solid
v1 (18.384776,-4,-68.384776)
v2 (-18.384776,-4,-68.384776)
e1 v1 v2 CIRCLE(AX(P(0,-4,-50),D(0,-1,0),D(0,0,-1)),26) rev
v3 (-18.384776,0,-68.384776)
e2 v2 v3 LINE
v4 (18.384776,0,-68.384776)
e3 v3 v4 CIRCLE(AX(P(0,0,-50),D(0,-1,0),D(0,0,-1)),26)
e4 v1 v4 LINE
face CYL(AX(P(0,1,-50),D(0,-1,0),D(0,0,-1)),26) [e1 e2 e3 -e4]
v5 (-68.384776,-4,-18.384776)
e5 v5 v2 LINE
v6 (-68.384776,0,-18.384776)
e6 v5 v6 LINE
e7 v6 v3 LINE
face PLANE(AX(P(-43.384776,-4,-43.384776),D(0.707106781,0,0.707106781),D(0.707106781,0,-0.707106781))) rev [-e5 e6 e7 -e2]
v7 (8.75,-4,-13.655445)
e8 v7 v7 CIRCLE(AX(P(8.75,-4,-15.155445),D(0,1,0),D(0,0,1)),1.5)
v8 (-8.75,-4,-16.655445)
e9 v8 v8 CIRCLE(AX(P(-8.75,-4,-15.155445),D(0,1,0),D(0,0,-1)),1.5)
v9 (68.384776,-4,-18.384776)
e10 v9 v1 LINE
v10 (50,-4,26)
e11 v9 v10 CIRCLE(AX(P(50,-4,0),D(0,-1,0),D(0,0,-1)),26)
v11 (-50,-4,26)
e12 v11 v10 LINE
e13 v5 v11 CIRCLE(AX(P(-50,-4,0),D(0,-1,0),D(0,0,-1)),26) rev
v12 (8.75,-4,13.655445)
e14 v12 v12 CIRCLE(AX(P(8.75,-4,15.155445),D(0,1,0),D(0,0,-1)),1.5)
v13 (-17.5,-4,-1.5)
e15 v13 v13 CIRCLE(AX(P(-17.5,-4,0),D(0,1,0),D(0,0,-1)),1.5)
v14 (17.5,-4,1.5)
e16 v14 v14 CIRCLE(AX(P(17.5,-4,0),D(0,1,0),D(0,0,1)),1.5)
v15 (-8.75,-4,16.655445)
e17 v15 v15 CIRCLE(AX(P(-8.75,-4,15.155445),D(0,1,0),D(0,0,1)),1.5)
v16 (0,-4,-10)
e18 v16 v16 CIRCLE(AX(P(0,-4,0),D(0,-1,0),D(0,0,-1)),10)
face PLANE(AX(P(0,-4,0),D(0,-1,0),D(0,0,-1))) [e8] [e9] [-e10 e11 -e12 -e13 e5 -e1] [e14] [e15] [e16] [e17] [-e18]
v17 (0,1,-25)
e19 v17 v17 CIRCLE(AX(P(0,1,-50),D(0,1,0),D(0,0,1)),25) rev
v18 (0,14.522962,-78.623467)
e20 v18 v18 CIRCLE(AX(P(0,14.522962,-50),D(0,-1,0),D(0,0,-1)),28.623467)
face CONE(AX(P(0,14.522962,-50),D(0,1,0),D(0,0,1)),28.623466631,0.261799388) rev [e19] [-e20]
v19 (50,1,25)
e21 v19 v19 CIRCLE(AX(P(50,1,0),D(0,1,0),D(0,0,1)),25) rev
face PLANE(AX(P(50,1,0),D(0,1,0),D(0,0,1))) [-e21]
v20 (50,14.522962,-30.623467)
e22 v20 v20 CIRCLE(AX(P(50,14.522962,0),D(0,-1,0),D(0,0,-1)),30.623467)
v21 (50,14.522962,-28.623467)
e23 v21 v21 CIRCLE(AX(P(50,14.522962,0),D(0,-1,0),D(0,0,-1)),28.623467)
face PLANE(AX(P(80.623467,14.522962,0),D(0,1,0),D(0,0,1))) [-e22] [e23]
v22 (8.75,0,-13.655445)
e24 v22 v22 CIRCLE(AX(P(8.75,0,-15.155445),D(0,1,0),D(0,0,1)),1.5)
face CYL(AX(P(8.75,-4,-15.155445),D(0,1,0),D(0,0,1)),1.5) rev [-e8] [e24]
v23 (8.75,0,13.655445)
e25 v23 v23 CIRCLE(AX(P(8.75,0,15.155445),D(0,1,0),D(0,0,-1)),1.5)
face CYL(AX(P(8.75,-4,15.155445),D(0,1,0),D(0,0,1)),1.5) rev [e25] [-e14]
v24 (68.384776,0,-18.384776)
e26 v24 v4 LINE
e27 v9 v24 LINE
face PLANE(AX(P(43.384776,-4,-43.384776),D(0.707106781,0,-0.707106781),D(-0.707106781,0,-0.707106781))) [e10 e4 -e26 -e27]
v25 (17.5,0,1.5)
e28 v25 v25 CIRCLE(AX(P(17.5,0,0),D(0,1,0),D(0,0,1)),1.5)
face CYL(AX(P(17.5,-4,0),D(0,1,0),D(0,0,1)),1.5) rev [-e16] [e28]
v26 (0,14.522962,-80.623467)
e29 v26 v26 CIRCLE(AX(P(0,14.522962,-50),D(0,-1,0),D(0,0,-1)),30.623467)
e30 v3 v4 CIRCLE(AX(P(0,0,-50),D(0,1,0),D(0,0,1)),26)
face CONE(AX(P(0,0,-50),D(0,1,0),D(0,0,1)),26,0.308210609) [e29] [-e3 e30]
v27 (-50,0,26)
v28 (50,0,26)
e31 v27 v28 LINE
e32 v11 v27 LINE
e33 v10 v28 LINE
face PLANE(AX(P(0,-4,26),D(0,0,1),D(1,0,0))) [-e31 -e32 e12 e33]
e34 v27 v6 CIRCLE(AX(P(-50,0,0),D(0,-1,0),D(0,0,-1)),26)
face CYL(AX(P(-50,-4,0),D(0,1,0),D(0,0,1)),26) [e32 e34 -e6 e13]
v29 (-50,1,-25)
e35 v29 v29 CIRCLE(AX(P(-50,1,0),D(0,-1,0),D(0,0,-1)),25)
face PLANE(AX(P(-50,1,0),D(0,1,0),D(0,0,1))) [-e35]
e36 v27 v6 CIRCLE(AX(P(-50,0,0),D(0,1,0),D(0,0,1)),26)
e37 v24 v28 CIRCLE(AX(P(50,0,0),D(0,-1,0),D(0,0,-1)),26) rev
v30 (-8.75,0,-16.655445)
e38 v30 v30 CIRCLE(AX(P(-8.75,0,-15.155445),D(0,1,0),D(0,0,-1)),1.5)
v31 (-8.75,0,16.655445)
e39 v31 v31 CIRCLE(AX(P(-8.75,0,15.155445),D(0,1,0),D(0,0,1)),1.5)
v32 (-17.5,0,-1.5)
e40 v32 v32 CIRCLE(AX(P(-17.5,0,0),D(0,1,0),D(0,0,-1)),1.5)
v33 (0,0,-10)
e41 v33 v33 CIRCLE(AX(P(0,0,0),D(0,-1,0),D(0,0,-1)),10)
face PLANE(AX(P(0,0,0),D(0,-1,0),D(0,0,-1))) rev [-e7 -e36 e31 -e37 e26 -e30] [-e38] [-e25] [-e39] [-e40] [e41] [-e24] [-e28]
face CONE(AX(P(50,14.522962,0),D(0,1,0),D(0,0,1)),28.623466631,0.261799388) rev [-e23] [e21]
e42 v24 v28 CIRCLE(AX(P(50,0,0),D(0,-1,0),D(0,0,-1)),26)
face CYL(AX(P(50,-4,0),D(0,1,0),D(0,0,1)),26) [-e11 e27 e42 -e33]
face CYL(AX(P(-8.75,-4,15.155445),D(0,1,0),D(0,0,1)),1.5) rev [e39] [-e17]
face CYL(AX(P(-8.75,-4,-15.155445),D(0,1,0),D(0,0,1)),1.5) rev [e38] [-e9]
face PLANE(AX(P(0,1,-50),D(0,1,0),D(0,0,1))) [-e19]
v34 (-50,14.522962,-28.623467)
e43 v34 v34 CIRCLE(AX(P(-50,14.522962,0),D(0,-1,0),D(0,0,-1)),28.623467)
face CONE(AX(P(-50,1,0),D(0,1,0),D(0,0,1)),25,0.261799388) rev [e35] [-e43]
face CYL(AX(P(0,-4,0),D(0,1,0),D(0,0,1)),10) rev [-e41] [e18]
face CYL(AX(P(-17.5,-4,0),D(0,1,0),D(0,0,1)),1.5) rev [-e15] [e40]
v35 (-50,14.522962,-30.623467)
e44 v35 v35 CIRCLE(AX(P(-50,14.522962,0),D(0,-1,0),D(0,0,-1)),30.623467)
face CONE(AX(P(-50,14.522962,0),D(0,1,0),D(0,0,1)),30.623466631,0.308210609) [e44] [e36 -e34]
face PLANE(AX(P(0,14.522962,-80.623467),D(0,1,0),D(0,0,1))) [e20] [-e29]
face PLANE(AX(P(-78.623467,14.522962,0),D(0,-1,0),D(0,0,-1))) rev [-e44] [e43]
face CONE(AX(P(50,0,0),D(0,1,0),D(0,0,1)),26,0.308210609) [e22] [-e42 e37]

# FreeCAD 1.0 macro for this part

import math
import FreeCAD as App
import Part
import Sketcher
from FreeCAD import Vector
Q = App.Units.Quantity


def add_polygon(sketch, points):
    """Adds a closed chain of lines whose ends are joined by coincident constraints."""
    first, n = sketch.GeometryCount, len(points)
    for a, b in zip(points, points[1:] + points[:1]):
        sketch.addGeometry(Part.LineSegment(App.Vector(*a, 0), App.Vector(*b, 0)), False)
    for i in range(n):
        sketch.addConstraint(Sketcher.Constraint("Coincident", first + i, 2, first + (i + 1) % n, 1))

doc = App.newDocument("Part")
body = doc.addObject("PartDesign::Body", "Body")

# Sketch on XZ plane
sketch1 = body.newObject("Sketcher::SketchObject", "Sketch")
sketch1.AttachmentSupport = (doc.getObject("XZ_Plane"), [""])
sketch1.MapMode = "FlatFace"
sketch1.addGeometry(Part.Circle(Vector(0, -50, 0), Vector(0, 0, 1), 26), False)
sketch1.addConstraint(Sketcher.Constraint("PointOnObject", 0, 3, -2))
sketch1.addConstraint(Sketcher.Constraint("Diameter", 0, 52.0))
sketch1.addConstraint(Sketcher.Constraint("DistanceY", 0, 3, -1, 1, 50.0))
pad1 = body.newObject("PartDesign::Pad", "Pad")
pad1.Profile = sketch1
pad1.Length = 1
pad1.Reversed = True
body2 = doc.addObject("PartDesign::Body", "Body001")

# Sketch on XZ plane
sketch2 = body2.newObject("Sketcher::SketchObject", "Sketch001")
sketch2.AttachmentSupport = (doc.getObject("XZ_Plane001"), [""])
sketch2.MapMode = "FlatFace"
sketch2.addGeometry(Part.Circle(Vector(50, 0, 0), Vector(0, 0, 1), 26), False)
sketch2.addConstraint(Sketcher.Constraint("PointOnObject", 0, 3, -1))
sketch2.addConstraint(Sketcher.Constraint("Diameter", 0, 52.0))
sketch2.addConstraint(Sketcher.Constraint("DistanceX", -1, 1, 0, 3, 50.0))
pad2 = body2.newObject("PartDesign::Pad", "Pad001")
pad2.Profile = sketch2
pad2.Length = 1
pad2.Reversed = True
body3 = doc.addObject("PartDesign::Body", "Body002")

# Sketch on XZ plane
sketch3 = body3.newObject("Sketcher::SketchObject", "Sketch002")
sketch3.AttachmentSupport = (doc.getObject("XZ_Plane002"), [""])
sketch3.MapMode = "FlatFace"
sketch3.addGeometry(Part.Circle(Vector(-50, 0, 0), Vector(0, 0, 1), 26), False)
sketch3.addConstraint(Sketcher.Constraint("PointOnObject", 0, 3, -1))
sketch3.addConstraint(Sketcher.Constraint("Diameter", 0, 52.0))
sketch3.addConstraint(Sketcher.Constraint("DistanceX", 0, 3, -1, 1, 50.0))
pad3 = body3.newObject("PartDesign::Pad", "Pad002")
pad3.Profile = sketch3
pad3.Length = 1
pad3.Reversed = True
body.AllowCompound = True
doc.recompute()

boolean = body.newObject("PartDesign::Boolean", "Boolean")
boolean.Type = "Fuse"
boolean.addObjects([body2])
doc.recompute()

boolean2 = body.newObject("PartDesign::Boolean", "Boolean001")
boolean2.Type = "Fuse"
boolean2.addObjects([body3])

# Sketch on XZ plane
sketch4 = body.newObject("Sketcher::SketchObject", "Sketch003")
sketch4.AttachmentSupport = (doc.getObject("XZ_Plane"), [""])
sketch4.MapMode = "FlatFace"
sketch4.AttachmentOffset = App.Placement(Vector(0, 0, 4), App.Rotation())
sketch4.addGeometry(Part.LineSegment(Vector(50, 26, 0), Vector(-50, 26, 0)), False)
sketch4.addGeometry(Part.ArcOfCircle(Part.Circle(Vector(-50, 0, 0), Vector(0, 0, 1), 26), math.radians(90), math.radians(225)), False)
sketch4.addGeometry(Part.LineSegment(Vector(-68, -18, 0), Vector(-18, -68, 0)), False)
sketch4.addGeometry(Part.ArcOfCircle(Part.Circle(Vector(0, -50, 0), Vector(0, 0, 1), 26), math.radians(-135), math.radians(-45)), False)
sketch4.addGeometry(Part.LineSegment(Vector(18, -68, 0), Vector(68, -18, 0)), False)
sketch4.addGeometry(Part.ArcOfCircle(Part.Circle(Vector(50, 0, 0), Vector(0, 0, 1), 26), math.radians(-45), math.radians(90)), False)
sketch4.addGeometry(Part.Circle(Vector(0, 0, 0), Vector(0, 0, 1), 10), False)
sketch4.addConstraint(Sketcher.Constraint("Tangent", 0, 2, 1, 1))
sketch4.addConstraint(Sketcher.Constraint("Tangent", 1, 2, 2, 1))
sketch4.addConstraint(Sketcher.Constraint("Tangent", 2, 2, 3, 1))
sketch4.addConstraint(Sketcher.Constraint("Tangent", 3, 2, 4, 1))
sketch4.addConstraint(Sketcher.Constraint("Tangent", 4, 2, 5, 1))
sketch4.addConstraint(Sketcher.Constraint("Tangent", 5, 2, 0, 1))
sketch4.addConstraint(Sketcher.Constraint("Horizontal", 0))
sketch4.addConstraint(Sketcher.Constraint("Coincident", 6, 3, -1, 1))
sketch4.addConstraint(Sketcher.Constraint("Equal", 1, 3))
sketch4.addConstraint(Sketcher.Constraint("Equal", 3, 5))
sketch4.addConstraint(Sketcher.Constraint("Symmetric", 1, 3, 5, 3, -1, 1))
sketch4.addConstraint(Sketcher.Constraint("PointOnObject", 3, 3, -2))
sketch4.addConstraint(Sketcher.Constraint("Perpendicular", 2, 4))
sketch4.addConstraint(Sketcher.Constraint("Diameter", 6, 20.0))
sketch4.addConstraint(Sketcher.Constraint("Radius", 1, 26.0))
sketch4.addConstraint(Sketcher.Constraint("DistanceX", 0, 2, 0, 1, 100.0))
pad4 = body.newObject("PartDesign::Pad", "Pad003")
pad4.Profile = sketch4
pad4.Length = 4
pad4.Reversed = True

# Sketch on XZ plane
sketch5 = body.newObject("Sketcher::SketchObject", "Sketch004")
sketch5.AttachmentSupport = (doc.getObject("XZ_Plane"), [""])
sketch5.MapMode = "FlatFace"
sketch5.addGeometry(Part.Circle(Vector(8.8, -15.2, 0), Vector(0, 0, 1), 1.5), False)
sketch5.addGeometry(Part.Circle(Vector(17.5, 0, 0), Vector(0, 0, 1), 1.5), False)
sketch5.addGeometry(Part.Circle(Vector(-17.5, 0, 0), Vector(0, 0, 1), 1.5), False)
sketch5.addGeometry(Part.Circle(Vector(-8.8, -15.2, 0), Vector(0, 0, 1), 1.5), False)
sketch5.addGeometry(Part.Circle(Vector(-8.8, 15.2, 0), Vector(0, 0, 1), 1.5), False)
sketch5.addGeometry(Part.Circle(Vector(8.8, 15.2, 0), Vector(0, 0, 1), 1.5), False)
sketch5.addConstraint(Sketcher.Constraint("Equal", 0, 1))
sketch5.addConstraint(Sketcher.Constraint("Equal", 1, 2))
sketch5.addConstraint(Sketcher.Constraint("Equal", 2, 3))
sketch5.addConstraint(Sketcher.Constraint("Equal", 3, 4))
sketch5.addConstraint(Sketcher.Constraint("Equal", 4, 5))
sketch5.addConstraint(Sketcher.Constraint("Symmetric", 1, 3, 2, 3, -1, 1))
sketch5.addConstraint(Sketcher.Constraint("Symmetric", 0, 3, 4, 3, -1, 1))
sketch5.addConstraint(Sketcher.Constraint("Symmetric", 3, 3, 5, 3, -1, 1))
sketch5.addConstraint(Sketcher.Constraint("Symmetric", 0, 3, 3, 3, -2))
sketch5.addConstraint(Sketcher.Constraint("PointOnObject", 1, 3, -1))
sketch5.addConstraint(Sketcher.Constraint("Diameter", 0, 3.0))
sketch5.addConstraint(Sketcher.Constraint("DistanceX", 2, 3, 1, 3, 35.0))
sketch5.addConstraint(Sketcher.Constraint("DistanceX", 3, 3, 0, 3, 17.5))
sketch5.addConstraint(Sketcher.Constraint("DistanceY", 3, 3, 4, 3, 30.310889))
pocket1 = body.newObject("PartDesign::Pocket", "Pocket")
pocket1.Profile = sketch5
pocket1.Length = 4
pocket1.Reversed = True

# Sketch on YZ plane
sketch6 = body.newObject("Sketcher::SketchObject", "Sketch005")
sketch6.AttachmentSupport = (doc.getObject("YZ_Plane"), [""])
sketch6.MapMode = "FlatFace"
add_polygon(sketch6, [(14.5, -80.6), (14.5, -78.6), (1, -75), (1, -76), (0, -76)])  # lines 0-4
sketch6.addGeometry(Part.LineSegment(Vector(0, -50, 0), Vector(14.5, -50, 0)), True)  # axis
sketch6.addConstraint(Sketcher.Constraint("Vertical", 0))
sketch6.addConstraint(Sketcher.Constraint("Vertical", 2))
sketch6.addConstraint(Sketcher.Constraint("Horizontal", 3))
sketch6.addConstraint(Sketcher.Constraint("Horizontal", 5))
sketch6.addConstraint(Sketcher.Constraint("PointOnObject", 3, 2, -2))
sketch6.addConstraint(Sketcher.Constraint("PointOnObject", 5, 1, -2))
sketch6.addConstraint(Sketcher.Constraint("Vertical", 4, 2, 5, 2))
sketch6.addConstraint(Sketcher.Constraint("Equal", 3, 2))
sketch6.addConstraint(Sketcher.Constraint("DistanceX", 3, 2, 3, 1, 1.0))
sketch6.addConstraint(Sketcher.Constraint("DistanceY", 0, 1, 0, 2, 2.0))
sketch6.addConstraint(Sketcher.Constraint("Angle", 1, Q("165 deg")))
sketch6.addConstraint(Sketcher.Constraint("Distance", 1, 14.0))
sketch6.addConstraint(Sketcher.Constraint("DistanceY", 1, 2, -1, 1, 75.0))
sketch6.addConstraint(Sketcher.Constraint("DistanceY", 5, 1, -1, 1, 50.0))
revolution = body.newObject("PartDesign::Revolution", "Revolution")
revolution.Profile = sketch6
revolution.ReferenceAxis = (sketch6, ["Axis0"])
revolution.Angle = 360

# Sketch on XY plane
sketch7 = body.newObject("Sketcher::SketchObject", "Sketch006")
sketch7.AttachmentSupport = (doc.getObject("XY_Plane"), [""])
sketch7.MapMode = "FlatFace"
add_polygon(sketch7, [(-75, 1), (-78.6, 14.5), (-80.6, 14.5), (-76, 0), (-76, 1)])  # lines 0-4
sketch7.addGeometry(Part.LineSegment(Vector(-50, 0, 0), Vector(-50, 14.5, 0)), True)  # axis
sketch7.addConstraint(Sketcher.Constraint("Horizontal", 1))
sketch7.addConstraint(Sketcher.Constraint("Vertical", 3))
sketch7.addConstraint(Sketcher.Constraint("Horizontal", 4))
sketch7.addConstraint(Sketcher.Constraint("Vertical", 5))
sketch7.addConstraint(Sketcher.Constraint("PointOnObject", 2, 2, -1))
sketch7.addConstraint(Sketcher.Constraint("PointOnObject", 5, 1, -1))
sketch7.addConstraint(Sketcher.Constraint("Horizontal", 1, 2, 5, 2))
sketch7.addConstraint(Sketcher.Constraint("Equal", 4, 3))
sketch7.addConstraint(Sketcher.Constraint("DistanceX", 1, 2, 1, 1, 2.0))
sketch7.addConstraint(Sketcher.Constraint("DistanceX", 4, 1, 4, 2, 1.0))
sketch7.addConstraint(Sketcher.Constraint("Angle", 0, Q("105 deg")))
sketch7.addConstraint(Sketcher.Constraint("Distance", 0, 14.0))
sketch7.addConstraint(Sketcher.Constraint("DistanceX", 2, 2, -1, 1, 76.0))
sketch7.addConstraint(Sketcher.Constraint("DistanceX", 5, 1, -1, 1, 50.0))
revolution2 = body.newObject("PartDesign::Revolution", "Revolution001")
revolution2.Profile = sketch7
revolution2.ReferenceAxis = (sketch7, ["Axis0"])
revolution2.Angle = 360

# Sketch on XY plane
sketch8 = body.newObject("Sketcher::SketchObject", "Sketch007")
sketch8.AttachmentSupport = (doc.getObject("XY_Plane"), [""])
sketch8.MapMode = "FlatFace"
add_polygon(sketch8, [(75, 1), (76, 1), (76, 0), (80.6, 14.5), (78.6, 14.5)])  # lines 0-4
sketch8.addGeometry(Part.LineSegment(Vector(50, 0, 0), Vector(50, 14.5, 0)), True)  # axis
sketch8.addConstraint(Sketcher.Constraint("Horizontal", 0))
sketch8.addConstraint(Sketcher.Constraint("Vertical", 1))
sketch8.addConstraint(Sketcher.Constraint("Horizontal", 3))
sketch8.addConstraint(Sketcher.Constraint("Vertical", 5))
sketch8.addConstraint(Sketcher.Constraint("PointOnObject", 1, 2, -1))
sketch8.addConstraint(Sketcher.Constraint("PointOnObject", 5, 1, -1))
sketch8.addConstraint(Sketcher.Constraint("Horizontal", 3, 2, 5, 2))
sketch8.addConstraint(Sketcher.Constraint("Equal", 0, 1))
sketch8.addConstraint(Sketcher.Constraint("DistanceX", 0, 1, 0, 2, 1.0))
sketch8.addConstraint(Sketcher.Constraint("DistanceX", 3, 2, 3, 1, 2.0))
sketch8.addConstraint(Sketcher.Constraint("Angle", 4, Q("-105 deg")))
sketch8.addConstraint(Sketcher.Constraint("Distance", 4, 14.0))
sketch8.addConstraint(Sketcher.Constraint("DistanceX", -1, 1, 0, 2, 76.0))
sketch8.addConstraint(Sketcher.Constraint("DistanceX", -1, 1, 5, 1, 50.0))
revolution3 = body.newObject("PartDesign::Revolution", "Revolution002")
revolution3.Profile = sketch8
revolution3.ReferenceAxis = (sketch8, ["Axis0"])
revolution3.Angle = 360

doc.recompute()
